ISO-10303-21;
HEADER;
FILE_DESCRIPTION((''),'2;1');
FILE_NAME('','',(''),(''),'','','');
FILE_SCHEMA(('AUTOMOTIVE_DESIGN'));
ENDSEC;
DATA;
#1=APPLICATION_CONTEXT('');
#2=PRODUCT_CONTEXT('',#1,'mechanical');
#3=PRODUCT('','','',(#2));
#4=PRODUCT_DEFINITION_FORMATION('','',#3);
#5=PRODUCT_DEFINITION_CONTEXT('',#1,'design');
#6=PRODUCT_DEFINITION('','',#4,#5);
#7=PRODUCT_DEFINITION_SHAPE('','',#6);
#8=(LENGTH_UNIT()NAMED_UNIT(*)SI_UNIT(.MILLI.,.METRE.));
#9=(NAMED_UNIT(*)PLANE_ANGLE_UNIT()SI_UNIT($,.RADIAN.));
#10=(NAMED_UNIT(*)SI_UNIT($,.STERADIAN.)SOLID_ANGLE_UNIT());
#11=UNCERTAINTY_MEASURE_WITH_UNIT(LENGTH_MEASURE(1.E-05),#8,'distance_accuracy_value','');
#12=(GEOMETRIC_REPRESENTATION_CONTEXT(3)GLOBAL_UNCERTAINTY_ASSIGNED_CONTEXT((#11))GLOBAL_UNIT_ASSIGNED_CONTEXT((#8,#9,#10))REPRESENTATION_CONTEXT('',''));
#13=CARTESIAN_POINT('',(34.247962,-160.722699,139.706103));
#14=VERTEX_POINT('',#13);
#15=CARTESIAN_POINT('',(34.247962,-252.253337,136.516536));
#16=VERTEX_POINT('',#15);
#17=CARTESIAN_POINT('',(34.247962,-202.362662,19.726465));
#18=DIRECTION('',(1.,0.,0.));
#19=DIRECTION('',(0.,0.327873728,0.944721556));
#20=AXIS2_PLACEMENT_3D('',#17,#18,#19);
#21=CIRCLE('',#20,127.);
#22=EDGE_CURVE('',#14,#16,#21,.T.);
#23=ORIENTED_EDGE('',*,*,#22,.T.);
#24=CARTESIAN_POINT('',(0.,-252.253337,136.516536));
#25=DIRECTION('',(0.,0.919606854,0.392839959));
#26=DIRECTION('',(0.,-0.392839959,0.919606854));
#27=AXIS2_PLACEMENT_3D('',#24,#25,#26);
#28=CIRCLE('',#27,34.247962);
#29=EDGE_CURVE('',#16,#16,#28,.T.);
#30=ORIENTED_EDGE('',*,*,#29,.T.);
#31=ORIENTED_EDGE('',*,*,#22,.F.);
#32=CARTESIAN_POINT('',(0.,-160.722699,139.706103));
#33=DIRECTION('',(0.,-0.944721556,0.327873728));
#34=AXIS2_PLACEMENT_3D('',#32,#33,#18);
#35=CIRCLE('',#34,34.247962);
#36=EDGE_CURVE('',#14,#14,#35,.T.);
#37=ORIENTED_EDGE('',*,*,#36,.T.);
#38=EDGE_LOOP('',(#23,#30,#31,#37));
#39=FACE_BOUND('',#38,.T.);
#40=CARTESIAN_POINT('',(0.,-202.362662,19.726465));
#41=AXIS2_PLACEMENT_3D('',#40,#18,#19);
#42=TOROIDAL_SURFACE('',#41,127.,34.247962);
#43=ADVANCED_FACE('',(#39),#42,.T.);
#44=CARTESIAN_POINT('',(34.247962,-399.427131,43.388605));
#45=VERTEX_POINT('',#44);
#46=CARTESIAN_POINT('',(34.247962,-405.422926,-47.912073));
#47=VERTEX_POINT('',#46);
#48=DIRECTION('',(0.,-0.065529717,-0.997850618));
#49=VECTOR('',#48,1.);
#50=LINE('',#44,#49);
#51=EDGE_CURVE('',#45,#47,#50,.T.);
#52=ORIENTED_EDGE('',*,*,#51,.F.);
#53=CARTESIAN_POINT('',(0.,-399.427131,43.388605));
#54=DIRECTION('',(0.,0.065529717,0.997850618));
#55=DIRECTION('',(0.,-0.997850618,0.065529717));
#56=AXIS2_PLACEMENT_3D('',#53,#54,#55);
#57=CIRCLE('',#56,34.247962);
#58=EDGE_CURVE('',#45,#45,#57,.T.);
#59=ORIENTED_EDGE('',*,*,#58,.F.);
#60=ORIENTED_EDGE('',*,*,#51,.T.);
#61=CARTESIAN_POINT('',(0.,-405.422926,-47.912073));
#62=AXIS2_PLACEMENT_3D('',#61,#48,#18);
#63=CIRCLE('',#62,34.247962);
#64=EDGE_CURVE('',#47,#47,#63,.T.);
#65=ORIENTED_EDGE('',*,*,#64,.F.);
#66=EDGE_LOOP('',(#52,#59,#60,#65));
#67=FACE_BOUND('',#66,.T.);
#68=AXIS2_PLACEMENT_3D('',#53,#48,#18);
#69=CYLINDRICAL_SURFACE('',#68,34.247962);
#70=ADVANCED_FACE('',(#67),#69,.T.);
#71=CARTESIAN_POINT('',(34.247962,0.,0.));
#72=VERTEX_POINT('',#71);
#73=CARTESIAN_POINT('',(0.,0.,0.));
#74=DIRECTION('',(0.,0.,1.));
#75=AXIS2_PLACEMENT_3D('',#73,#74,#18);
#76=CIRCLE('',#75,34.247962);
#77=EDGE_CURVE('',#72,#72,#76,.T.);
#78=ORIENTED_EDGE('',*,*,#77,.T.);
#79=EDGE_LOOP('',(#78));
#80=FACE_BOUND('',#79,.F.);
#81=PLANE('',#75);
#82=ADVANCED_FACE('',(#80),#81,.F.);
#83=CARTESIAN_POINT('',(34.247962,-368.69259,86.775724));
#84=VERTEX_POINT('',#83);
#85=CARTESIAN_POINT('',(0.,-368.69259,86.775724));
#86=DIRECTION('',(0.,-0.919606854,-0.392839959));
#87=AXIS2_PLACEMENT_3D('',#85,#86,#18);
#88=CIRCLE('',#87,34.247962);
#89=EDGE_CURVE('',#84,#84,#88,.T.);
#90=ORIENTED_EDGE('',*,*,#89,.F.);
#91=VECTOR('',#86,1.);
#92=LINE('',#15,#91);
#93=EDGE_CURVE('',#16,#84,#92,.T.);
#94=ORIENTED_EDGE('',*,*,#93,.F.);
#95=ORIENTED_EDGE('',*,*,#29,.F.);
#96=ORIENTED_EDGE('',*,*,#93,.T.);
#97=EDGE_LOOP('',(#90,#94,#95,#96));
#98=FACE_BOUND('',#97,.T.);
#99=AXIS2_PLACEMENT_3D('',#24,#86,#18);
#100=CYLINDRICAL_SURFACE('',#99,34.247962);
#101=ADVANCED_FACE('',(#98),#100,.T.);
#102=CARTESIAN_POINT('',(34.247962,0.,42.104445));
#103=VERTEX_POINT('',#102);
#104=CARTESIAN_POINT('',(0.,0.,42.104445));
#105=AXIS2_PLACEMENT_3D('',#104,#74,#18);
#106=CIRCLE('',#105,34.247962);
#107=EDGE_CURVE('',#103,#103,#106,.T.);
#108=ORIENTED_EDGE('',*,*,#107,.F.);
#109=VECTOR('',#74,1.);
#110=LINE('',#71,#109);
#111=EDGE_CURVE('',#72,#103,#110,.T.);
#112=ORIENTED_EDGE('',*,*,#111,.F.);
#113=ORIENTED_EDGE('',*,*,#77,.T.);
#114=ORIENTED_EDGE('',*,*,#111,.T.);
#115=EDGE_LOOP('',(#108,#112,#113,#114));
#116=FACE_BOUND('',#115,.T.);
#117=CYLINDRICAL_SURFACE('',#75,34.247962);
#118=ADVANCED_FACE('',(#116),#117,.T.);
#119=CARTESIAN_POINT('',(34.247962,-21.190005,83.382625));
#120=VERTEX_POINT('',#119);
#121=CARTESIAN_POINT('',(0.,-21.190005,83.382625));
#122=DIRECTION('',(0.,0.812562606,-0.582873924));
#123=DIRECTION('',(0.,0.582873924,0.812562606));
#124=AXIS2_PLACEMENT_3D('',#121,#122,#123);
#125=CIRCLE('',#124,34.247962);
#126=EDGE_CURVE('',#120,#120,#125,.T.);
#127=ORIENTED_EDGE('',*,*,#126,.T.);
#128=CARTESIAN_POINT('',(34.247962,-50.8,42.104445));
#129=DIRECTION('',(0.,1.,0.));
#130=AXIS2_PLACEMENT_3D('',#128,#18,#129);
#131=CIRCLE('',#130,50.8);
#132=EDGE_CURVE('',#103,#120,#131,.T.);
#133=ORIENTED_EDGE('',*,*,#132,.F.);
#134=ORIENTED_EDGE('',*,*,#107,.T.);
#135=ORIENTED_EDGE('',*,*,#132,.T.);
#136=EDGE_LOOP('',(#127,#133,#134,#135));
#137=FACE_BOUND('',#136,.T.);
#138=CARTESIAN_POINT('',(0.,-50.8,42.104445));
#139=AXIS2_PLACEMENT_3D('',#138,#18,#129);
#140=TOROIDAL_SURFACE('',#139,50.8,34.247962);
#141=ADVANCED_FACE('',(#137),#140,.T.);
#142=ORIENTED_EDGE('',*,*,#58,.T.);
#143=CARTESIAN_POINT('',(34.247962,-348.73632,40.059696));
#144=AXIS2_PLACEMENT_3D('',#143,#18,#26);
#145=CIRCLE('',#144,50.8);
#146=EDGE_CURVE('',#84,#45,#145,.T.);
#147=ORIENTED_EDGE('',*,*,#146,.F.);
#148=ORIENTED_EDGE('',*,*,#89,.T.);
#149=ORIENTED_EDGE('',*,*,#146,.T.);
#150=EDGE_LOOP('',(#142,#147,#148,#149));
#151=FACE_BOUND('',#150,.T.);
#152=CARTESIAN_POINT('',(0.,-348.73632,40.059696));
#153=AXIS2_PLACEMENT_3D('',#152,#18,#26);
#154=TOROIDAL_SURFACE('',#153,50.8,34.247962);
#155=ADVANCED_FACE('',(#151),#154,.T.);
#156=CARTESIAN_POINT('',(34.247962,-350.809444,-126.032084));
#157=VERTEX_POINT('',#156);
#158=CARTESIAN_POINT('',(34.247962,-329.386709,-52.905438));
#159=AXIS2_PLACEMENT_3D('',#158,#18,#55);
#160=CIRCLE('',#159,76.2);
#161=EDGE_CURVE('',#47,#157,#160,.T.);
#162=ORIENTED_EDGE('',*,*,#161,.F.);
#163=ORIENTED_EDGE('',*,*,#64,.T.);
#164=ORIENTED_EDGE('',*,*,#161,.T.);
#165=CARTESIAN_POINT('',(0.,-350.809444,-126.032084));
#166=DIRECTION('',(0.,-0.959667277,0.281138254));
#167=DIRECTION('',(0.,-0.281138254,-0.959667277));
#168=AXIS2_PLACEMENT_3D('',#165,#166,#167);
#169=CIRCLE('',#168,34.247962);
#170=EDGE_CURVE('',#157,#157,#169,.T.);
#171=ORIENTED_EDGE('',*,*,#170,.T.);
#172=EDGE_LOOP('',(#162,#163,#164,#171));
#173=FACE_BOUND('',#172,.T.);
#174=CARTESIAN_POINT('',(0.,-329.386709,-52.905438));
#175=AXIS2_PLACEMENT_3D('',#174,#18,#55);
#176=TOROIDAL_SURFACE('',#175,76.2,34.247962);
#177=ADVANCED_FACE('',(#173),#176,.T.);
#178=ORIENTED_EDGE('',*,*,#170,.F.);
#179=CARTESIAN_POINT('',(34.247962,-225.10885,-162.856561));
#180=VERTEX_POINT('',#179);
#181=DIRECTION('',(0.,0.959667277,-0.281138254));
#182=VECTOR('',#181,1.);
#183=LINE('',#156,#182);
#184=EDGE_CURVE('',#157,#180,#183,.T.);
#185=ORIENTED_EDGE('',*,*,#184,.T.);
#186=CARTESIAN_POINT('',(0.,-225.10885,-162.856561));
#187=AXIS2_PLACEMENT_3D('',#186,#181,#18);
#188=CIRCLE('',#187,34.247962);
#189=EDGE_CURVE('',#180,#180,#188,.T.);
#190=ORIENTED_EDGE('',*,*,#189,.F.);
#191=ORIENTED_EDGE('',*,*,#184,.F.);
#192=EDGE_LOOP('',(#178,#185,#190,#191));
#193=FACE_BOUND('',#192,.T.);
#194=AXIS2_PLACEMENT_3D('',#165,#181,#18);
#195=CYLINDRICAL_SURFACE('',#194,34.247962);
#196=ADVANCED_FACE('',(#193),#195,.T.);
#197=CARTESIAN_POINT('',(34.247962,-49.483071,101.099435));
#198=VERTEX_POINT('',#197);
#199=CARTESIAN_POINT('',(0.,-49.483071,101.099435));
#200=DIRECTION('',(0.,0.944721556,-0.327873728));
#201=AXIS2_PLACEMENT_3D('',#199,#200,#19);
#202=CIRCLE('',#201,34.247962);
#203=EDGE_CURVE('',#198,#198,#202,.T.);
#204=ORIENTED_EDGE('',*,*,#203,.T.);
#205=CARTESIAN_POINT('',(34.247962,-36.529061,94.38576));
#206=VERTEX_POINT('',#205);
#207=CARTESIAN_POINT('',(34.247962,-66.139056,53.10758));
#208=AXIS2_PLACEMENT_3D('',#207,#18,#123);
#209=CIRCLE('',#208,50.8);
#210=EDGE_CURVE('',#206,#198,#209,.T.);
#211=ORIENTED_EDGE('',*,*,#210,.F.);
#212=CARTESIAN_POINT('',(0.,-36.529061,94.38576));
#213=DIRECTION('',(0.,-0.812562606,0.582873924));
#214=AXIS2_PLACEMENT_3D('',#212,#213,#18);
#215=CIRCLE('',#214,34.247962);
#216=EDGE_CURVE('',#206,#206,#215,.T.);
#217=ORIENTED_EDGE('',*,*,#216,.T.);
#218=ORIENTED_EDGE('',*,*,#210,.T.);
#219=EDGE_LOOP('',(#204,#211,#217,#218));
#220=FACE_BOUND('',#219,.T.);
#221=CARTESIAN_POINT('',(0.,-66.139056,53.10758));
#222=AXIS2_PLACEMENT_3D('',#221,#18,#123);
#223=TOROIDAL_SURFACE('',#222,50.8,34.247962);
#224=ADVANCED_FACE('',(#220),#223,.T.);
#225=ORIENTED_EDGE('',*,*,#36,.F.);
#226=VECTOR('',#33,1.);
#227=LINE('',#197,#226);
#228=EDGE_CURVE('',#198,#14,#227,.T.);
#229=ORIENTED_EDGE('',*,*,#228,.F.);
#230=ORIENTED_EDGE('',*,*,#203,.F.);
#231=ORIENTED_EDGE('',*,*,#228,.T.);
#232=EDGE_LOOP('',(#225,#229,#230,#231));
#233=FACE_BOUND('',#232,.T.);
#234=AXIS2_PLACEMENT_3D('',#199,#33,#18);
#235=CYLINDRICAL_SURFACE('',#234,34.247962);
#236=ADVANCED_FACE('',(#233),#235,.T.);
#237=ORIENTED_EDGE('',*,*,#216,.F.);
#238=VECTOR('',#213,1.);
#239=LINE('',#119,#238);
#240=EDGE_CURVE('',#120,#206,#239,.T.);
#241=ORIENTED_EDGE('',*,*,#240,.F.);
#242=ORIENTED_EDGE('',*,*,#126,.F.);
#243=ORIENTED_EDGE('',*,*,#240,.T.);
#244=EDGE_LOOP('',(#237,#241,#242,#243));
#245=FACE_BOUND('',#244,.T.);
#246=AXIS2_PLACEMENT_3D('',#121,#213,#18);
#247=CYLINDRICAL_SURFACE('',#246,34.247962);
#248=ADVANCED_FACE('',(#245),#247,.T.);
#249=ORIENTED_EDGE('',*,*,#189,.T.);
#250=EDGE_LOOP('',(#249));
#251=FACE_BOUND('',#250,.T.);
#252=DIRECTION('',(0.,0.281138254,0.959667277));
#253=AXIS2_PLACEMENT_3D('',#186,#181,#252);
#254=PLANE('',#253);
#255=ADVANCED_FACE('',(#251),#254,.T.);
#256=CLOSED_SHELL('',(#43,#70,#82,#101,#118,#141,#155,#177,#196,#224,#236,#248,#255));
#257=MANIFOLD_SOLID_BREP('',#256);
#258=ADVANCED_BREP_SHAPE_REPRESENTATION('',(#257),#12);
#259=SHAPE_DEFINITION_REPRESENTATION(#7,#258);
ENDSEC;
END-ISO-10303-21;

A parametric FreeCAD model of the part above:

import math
import FreeCAD as App
import Part
import Sketcher

V = App.Vector
Q = App.Units.Quantity

doc = App.newDocument("Part")
params = doc.addObject("Spreadsheet::Sheet", "Params")
for row, (alias, value) in enumerate([
    ("sketch2_radius", "2 in"),
    ("sketch2_radius2", "5 in"),
    ("sketch2_radius3", "3 in"),
], start=1):
    params.set(f"A{row}", alias)
    params.set(f"B{row}", "=" + value)
    params.setAlias(f"B{row}", alias)

body = doc.addObject("PartDesign::Body", "Body")

# Sketch on XY plane
sketch1 = body.newObject("Sketcher::SketchObject", "Sketch")
sketch1.AttachmentSupport = (doc.getObject("XY_Plane"), [""])
sketch1.MapMode = "FlatFace"
sketch1.addGeometry(Part.Circle(V(0, 0, 0), V(0, 0, 1), 34), False)
sketch1.addConstraint(Sketcher.Constraint("Coincident", 0, 3, -1, 1))
sketch1.addConstraint(Sketcher.Constraint("Diameter", 0, Q("68.495924 mm")))

# Sketch on YZ plane
sketch2 = body.newObject("Sketcher::SketchObject", "Sketch001")
sketch2.AttachmentSupport = (doc.getObject("YZ_Plane"), [""])
sketch2.MapMode = "FlatFace"
sketch2.addGeometry(Part.LineSegment(V(0, 0, 0), V(0, 42, 0)), False)
sketch2.addGeometry(Part.ArcOfCircle(Part.Circle(V(-51, 42, 0), V(0, 0, 1), 51), math.radians(0), math.radians(54)), False)
sketch2.addGeometry(Part.LineSegment(V(-21, 83, 0), V(-37, 94, 0)), False)
sketch2.addGeometry(Part.ArcOfCircle(Part.Circle(V(-66, 53, 0), V(0, 0, 1), 51), math.radians(54.35), math.radians(70.86)), False)
sketch2.addGeometry(Part.LineSegment(V(-49, 101, 0), V(-161, 140, 0)), False)
sketch2.addGeometry(Part.ArcOfCircle(Part.Circle(V(-202, 20, 0), V(0, 0, 1), 127), math.radians(71), math.radians(113)), False)
sketch2.addGeometry(Part.LineSegment(V(-252, 137, 0), V(-369, 87, 0)), False)
sketch2.addGeometry(Part.ArcOfCircle(Part.Circle(V(-349, 40, 0), V(0, 0, 1), 51), math.radians(113), math.radians(176)), False)
sketch2.addGeometry(Part.LineSegment(V(-399, 43, 0), V(-405, -48, 0)), False)
sketch2.addGeometry(Part.ArcOfCircle(Part.Circle(V(-329, -53, 0), V(0, 0, 1), 76), math.radians(176), math.radians(254)), False)
sketch2.addGeometry(Part.LineSegment(V(-351, -126, 0), V(-225, -163, 0)), False)
sketch2.addConstraint(Sketcher.Constraint("Tangent", 0, 2, 1, 1))
sketch2.addConstraint(Sketcher.Constraint("Tangent", 1, 2, 2, 1))
sketch2.addConstraint(Sketcher.Constraint("Tangent", 2, 2, 3, 1))
sketch2.addConstraint(Sketcher.Constraint("Tangent", 3, 2, 4, 1))
sketch2.addConstraint(Sketcher.Constraint("Tangent", 4, 2, 5, 1))
sketch2.addConstraint(Sketcher.Constraint("Tangent", 5, 2, 6, 1))
sketch2.addConstraint(Sketcher.Constraint("Tangent", 6, 2, 7, 1))
sketch2.addConstraint(Sketcher.Constraint("Tangent", 7, 2, 8, 1))
sketch2.addConstraint(Sketcher.Constraint("Tangent", 8, 2, 9, 1))
sketch2.addConstraint(Sketcher.Constraint("Tangent", 9, 2, 10, 1))
sketch2.addConstraint(Sketcher.Constraint("Vertical", 0))
sketch2.addConstraint(Sketcher.Constraint("Coincident", 0, 1, -1, 1))
sketch2.addConstraint(Sketcher.Constraint("Equal", 1, 3))
sketch2.addConstraint(Sketcher.Constraint("Equal", 3, 7))
sketch2.addConstraint(Sketcher.Constraint("Radius", 1, Q("2 in")))
sketch2.addConstraint(Sketcher.Constraint("Radius", 5, Q("5 in")))
sketch2.addConstraint(Sketcher.Constraint("Radius", 9, Q("3 in")))
sketch2.addConstraint(Sketcher.Constraint("DistanceX", 3, 3, -1, 1, Q("2.6038999 in")))
sketch2.addConstraint(Sketcher.Constraint("DistanceX", 4, 2, -1, 1, Q("160.722699 mm")))
sketch2.addConstraint(Sketcher.Constraint("Distance", 8, Q("91.497341 mm")))
sketch2.addConstraint(Sketcher.Constraint("DistanceY", 0, 1, 0, 2, Q("42.104445 mm")))
sketch2.addConstraint(Sketcher.Constraint("DistanceY", -1, 1, 3, 3, Q("53.10758 mm")))
sketch2.addConstraint(Sketcher.Constraint("DistanceX", 7, 3, -1, 1, Q("348.73632 mm")))
sketch2.addConstraint(Sketcher.Constraint("DistanceX", 9, 3, -1, 1, Q("329.386709 mm")))
sketch2.addConstraint(Sketcher.Constraint("DistanceX", 3, 2, -1, 1, Q("49.483071 mm")))
sketch2.addConstraint(Sketcher.Constraint("DistanceX", 6, 2, -1, 1, Q("368.69259 mm")))
sketch2.addConstraint(Sketcher.Constraint("DistanceX", 10, 2, -1, 1, Q("225.10885 mm")))
sketch2.addConstraint(Sketcher.Constraint("DistanceY", 10, 2, -1, 1, Q("162.856561 mm")))
sketch2.setExpression("Constraints[14]", "Params.sketch2_radius")
sketch2.setExpression("Constraints[15]", "Params.sketch2_radius2")
sketch2.setExpression("Constraints[16]", "Params.sketch2_radius3")
doc.recompute()

additivepipe = body.newObject("PartDesign::AdditivePipe", "AdditivePipe")
additivepipe.Profile = sketch1
additivepipe.Spine = (sketch2, ["Edge1", "Edge2", "Edge3", "Edge4", "Edge5", "Edge6", "Edge7", "Edge8", "Edge9", "Edge10", "Edge11"])

doc.recompute()
